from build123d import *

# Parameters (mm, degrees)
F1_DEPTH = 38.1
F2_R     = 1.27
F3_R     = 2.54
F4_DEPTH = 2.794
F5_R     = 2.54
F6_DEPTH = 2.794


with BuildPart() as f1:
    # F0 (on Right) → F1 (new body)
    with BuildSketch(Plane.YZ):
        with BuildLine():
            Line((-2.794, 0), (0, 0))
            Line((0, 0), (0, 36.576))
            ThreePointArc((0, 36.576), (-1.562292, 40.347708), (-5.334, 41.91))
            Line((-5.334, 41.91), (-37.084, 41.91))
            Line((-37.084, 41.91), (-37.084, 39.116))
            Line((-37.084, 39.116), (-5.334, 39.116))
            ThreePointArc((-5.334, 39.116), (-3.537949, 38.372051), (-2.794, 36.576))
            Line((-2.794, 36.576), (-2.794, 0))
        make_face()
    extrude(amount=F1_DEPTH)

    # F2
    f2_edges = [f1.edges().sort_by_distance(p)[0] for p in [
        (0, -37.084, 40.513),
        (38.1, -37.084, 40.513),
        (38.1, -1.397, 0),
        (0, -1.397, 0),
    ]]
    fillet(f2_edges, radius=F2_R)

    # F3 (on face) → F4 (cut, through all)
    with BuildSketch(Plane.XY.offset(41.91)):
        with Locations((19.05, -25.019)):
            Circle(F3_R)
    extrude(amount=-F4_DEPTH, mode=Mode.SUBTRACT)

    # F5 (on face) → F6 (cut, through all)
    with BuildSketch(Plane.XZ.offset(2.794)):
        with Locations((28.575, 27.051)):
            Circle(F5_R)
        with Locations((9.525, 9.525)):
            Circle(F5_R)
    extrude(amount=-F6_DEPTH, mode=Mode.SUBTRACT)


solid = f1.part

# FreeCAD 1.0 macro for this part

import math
import FreeCAD as App
import Part
import Sketcher
from FreeCAD import Vector
Q = App.Units.Quantity


def edges_at(feature, points):
    """Names of the edges that pass closest to the given points."""
    edges = feature.Shape.Edges
    near = lambda p: min(range(len(edges)), key=lambda i: edges[i].distToShape(Part.Vertex(*p))[0])
    return sorted({f"Edge{near(p) + 1}" for p in points})

doc = App.newDocument("Part")
body = doc.addObject("PartDesign::Body", "Body")

# Sketch on YZ plane
sketch1 = body.newObject("Sketcher::SketchObject", "Sketch")
sketch1.AttachmentSupport = (doc.getObject("YZ_Plane"), [""])
sketch1.MapMode = "FlatFace"
sketch1.addGeometry([
    Part.LineSegment(Vector(-2.8, 0, 0), Vector(0, 0, 0)),  # 0
    Part.LineSegment(Vector(0, 0, 0), Vector(0, 36.6, 0)),  # 1
    Part.ArcOfCircle(Part.Circle(Vector(-5.3, 36.6, 0), Vector(0, 0, 1), 5.3), math.radians(0), math.radians(90)),  # 2
    Part.LineSegment(Vector(-5.3, 41.9, 0), Vector(-37.1, 41.9, 0)),  # 3
    Part.LineSegment(Vector(-37.1, 41.9, 0), Vector(-37.1, 39.1, 0)),  # 4
    Part.LineSegment(Vector(-37.1, 39.1, 0), Vector(-5.3, 39.1, 0)),  # 5
    Part.ArcOfCircle(Part.Circle(Vector(-5.3, 36.6, 0), Vector(0, 0, 1), 2.5), math.radians(0), math.radians(90)),  # 6
    Part.LineSegment(Vector(-2.8, 36.6, 0), Vector(-2.8, 0, 0)),  # 7
], False)
sketch1.addConstraint([
    Sketcher.Constraint("Coincident", 0, 2, 1, 1),
    Sketcher.Constraint("Tangent", 1, 2, 2, 1),
    Sketcher.Constraint("Tangent", 2, 2, 3, 1),
    Sketcher.Constraint("Coincident", 3, 2, 4, 1),
    Sketcher.Constraint("Coincident", 4, 2, 5, 1),
    Sketcher.Constraint("Tangent", 5, 2, 6, 2),
    Sketcher.Constraint("Tangent", 6, 1, 7, 1),
    Sketcher.Constraint("Coincident", 7, 2, 0, 1),
    Sketcher.Constraint("Horizontal", 0),
    Sketcher.Constraint("Vertical", 1),
    Sketcher.Constraint("Horizontal", 3),
    Sketcher.Constraint("Vertical", 4),
    Sketcher.Constraint("Horizontal", 5),
    Sketcher.Constraint("Vertical", 7),
    Sketcher.Constraint("Coincident", 0, 2, -1, 1),
    Sketcher.Constraint("Coincident", 6, 3, 2, 3),
    Sketcher.Constraint("Radius", 6, Q("0.1 in")),
    Sketcher.Constraint("Radius", 2, Q("0.2099999 in")),
    Sketcher.Constraint("DistanceX", 3, 2, 3, 1, Q("1.25 in")),
    Sketcher.Constraint("DistanceY", 1, 1, 1, 2, Q("1.44 in")),
])
pad1 = body.newObject("PartDesign::Pad", "Pad")
pad1.Profile = sketch1
pad1.Length = Q("1.5 in")
doc.recompute()

fillet = body.newObject("PartDesign::Fillet", "Fillet")
fillet.Base = (pad1, edges_at(pad1, [
    (0, -37.084, 40.513),
    (38.1, -37.084, 40.513),
    (38.1, -1.397, 0),
    (0, -1.397, 0),
]))
fillet.Radius = Q("0.05 in")

# Sketch on XY plane
sketch2 = body.newObject("Sketcher::SketchObject", "Sketch001")
sketch2.AttachmentSupport = (doc.getObject("XY_Plane"), [""])
sketch2.MapMode = "FlatFace"
sketch2.AttachmentOffset = App.Placement(Vector(0, 0, 1.65 * 25.4), App.Rotation())
sketch2.addGeometry(Part.Circle(Vector(19.1, -25, 0), Vector(0, 0, 1), 2.5), False)
sketch2.addConstraint([
    Sketcher.Constraint("Diameter", 0, Q("0.2 in")),
    Sketcher.Constraint("DistanceX", -1, 1, 0, 3, Q("0.75 in")),
    Sketcher.Constraint("DistanceY", 0, 3, -1, 1, Q("0.985 in")),
])
pocket1 = body.newObject("PartDesign::Pocket", "Pocket")
pocket1.Profile = sketch2
pocket1.Type = "ThroughAll"

# Sketch on XZ plane
sketch3 = body.newObject("Sketcher::SketchObject", "Sketch002")
sketch3.AttachmentSupport = (doc.getObject("XZ_Plane"), [""])
sketch3.MapMode = "FlatFace"
sketch3.AttachmentOffset = App.Placement(Vector(0, 0, 0.11 * 25.4), App.Rotation())
sketch3.addGeometry([
    Part.Circle(Vector(28.6, 27.1, 0), Vector(0, 0, 1), 2.5),
    Part.Circle(Vector(9.5, 9.5, 0), Vector(0, 0, 1), 2.5),
], False)
sketch3.addConstraint([
    Sketcher.Constraint("Equal", 0, 1),
    Sketcher.Constraint("Diameter", 0, Q("0.2 in")),
    Sketcher.Constraint("DistanceX", 1, 3, 0, 3, Q("0.75 in")),
    Sketcher.Constraint("DistanceY", 1, 3, 0, 3, Q("0.69 in")),
    Sketcher.Constraint("DistanceX", -1, 1, 0, 3, Q("1.125 in")),
    Sketcher.Constraint("DistanceY", -1, 1, 0, 3, Q("1.065 in")),
])
pocket2 = body.newObject("PartDesign::Pocket", "Pocket001")
pocket2.Profile = sketch3
pocket2.Type = "ThroughAll"

doc.recompute()
